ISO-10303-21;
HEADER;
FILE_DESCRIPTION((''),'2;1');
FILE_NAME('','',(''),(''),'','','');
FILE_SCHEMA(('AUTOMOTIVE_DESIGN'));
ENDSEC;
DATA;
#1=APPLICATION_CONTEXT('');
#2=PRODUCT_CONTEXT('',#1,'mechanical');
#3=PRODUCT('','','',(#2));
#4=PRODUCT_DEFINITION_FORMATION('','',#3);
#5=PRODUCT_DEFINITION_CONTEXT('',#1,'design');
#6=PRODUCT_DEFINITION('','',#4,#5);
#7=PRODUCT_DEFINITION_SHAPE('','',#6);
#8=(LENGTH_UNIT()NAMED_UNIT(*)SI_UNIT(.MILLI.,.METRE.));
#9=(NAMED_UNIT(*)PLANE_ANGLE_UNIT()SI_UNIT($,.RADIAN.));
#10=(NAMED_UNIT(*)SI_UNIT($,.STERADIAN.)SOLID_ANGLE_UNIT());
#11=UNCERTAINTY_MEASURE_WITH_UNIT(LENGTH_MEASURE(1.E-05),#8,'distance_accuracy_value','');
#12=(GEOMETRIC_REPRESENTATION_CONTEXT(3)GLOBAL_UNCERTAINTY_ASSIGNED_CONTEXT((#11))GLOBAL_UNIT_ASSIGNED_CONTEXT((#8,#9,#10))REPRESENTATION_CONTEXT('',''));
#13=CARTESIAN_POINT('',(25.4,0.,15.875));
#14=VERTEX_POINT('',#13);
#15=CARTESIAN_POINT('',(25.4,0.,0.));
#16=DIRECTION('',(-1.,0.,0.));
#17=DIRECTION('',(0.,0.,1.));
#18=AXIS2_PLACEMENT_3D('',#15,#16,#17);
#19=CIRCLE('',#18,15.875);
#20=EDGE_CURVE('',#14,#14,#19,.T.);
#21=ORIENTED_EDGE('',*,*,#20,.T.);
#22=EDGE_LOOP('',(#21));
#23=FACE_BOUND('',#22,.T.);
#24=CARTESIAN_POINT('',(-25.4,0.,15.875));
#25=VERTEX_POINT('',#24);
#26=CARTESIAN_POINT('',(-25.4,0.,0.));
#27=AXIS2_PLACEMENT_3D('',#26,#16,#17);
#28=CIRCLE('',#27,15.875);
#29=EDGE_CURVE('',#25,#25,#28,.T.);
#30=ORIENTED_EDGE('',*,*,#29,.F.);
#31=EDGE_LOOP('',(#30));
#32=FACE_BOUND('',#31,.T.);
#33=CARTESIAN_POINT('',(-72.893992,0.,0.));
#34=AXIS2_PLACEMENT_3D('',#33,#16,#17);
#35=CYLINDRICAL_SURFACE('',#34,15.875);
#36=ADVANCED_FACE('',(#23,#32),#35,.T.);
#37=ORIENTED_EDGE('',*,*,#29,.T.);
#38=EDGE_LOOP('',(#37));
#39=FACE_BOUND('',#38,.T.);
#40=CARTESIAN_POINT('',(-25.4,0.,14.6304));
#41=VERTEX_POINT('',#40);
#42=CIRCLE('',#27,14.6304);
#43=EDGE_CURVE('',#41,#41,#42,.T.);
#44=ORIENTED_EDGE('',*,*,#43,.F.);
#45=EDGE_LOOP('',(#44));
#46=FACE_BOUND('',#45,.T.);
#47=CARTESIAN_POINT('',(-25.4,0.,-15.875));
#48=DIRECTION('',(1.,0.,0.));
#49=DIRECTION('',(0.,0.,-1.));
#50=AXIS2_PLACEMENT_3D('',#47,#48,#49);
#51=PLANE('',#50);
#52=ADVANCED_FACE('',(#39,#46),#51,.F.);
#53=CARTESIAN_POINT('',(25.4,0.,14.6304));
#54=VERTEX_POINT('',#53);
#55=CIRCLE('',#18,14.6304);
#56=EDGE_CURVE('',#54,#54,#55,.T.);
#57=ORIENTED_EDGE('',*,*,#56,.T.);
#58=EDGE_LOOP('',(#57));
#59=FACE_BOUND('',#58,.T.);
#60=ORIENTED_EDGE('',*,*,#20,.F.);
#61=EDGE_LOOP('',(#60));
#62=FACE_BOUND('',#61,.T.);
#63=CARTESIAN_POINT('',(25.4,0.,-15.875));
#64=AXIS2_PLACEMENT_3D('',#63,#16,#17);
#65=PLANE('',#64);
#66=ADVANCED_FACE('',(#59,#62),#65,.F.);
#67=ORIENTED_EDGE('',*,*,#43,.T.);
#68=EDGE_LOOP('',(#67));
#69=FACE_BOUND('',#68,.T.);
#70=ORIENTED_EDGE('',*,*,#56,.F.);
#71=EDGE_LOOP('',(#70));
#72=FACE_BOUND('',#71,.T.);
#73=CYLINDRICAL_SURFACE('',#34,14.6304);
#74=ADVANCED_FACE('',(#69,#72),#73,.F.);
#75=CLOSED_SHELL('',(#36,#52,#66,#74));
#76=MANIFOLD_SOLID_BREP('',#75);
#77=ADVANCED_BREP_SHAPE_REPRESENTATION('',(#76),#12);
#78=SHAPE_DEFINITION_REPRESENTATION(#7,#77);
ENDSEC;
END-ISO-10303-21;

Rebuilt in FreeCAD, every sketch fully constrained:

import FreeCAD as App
import Part
import Sketcher
from FreeCAD import Vector
Q = App.Units.Quantity


def add_polygon(sketch, points):
    """Adds a closed chain of lines whose ends are joined by coincident constraints."""
    first, n = sketch.GeometryCount, len(points)
    for a, b in zip(points, points[1:] + points[:1]):
        sketch.addGeometry(Part.LineSegment(App.Vector(*a, 0), App.Vector(*b, 0)), False)
    for i in range(n):
        sketch.addConstraint(Sketcher.Constraint("Coincident", first + i, 2, first + (i + 1) % n, 1))

doc = App.newDocument("Part")
params = doc.addObject("Spreadsheet::Sheet", "Params")
for row, (alias, value) in enumerate([
    ("sketch1_width", "2 in"),
    ("sketch1_height", "0.049 in"),
    ("revolution_angle", "360 deg"),
], start=1):
    params.set(f"A{row}", alias)
    params.set(f"B{row}", "=" + value)
    params.setAlias(f"B{row}", alias)

body = doc.addObject("PartDesign::Body", "Body")

sketch1 = doc.addObject("Sketcher::SketchObject", "Sketch")
body.addObject(sketch1)
sketch1.AttachmentSupport = (doc.XZ_Plane, [""])
sketch1.MapMode = "FlatFace"
add_polygon(sketch1, [(-25.4, -15.9), (-25.4, -14.6), (25.4, -14.6), (25.4, -15.9)])
sketch1.addConstraint([
    Sketcher.Constraint("Vertical", 0),
    Sketcher.Constraint("Horizontal", 1),
    Sketcher.Constraint("Vertical", 2),
    Sketcher.Constraint("Horizontal", 3),
    Sketcher.Constraint("DistanceX", 1, 1, 1, 2, Q("2 in")),
    Sketcher.Constraint("DistanceX", 0, 2, -1, 1, Q("1 in")),
    Sketcher.Constraint("DistanceY", 0, 1, 0, 2, Q("0.049 in")),
    Sketcher.Constraint("DistanceY", 0, 2, -1, 1, Q("0.576 in")),
])
sketch1.setExpression("Constraints[8]", "Params.sketch1_width")
sketch1.setExpression("Constraints[10]", "Params.sketch1_height")
revolution = doc.addObject("PartDesign::Revolution", "Revolution")
body.addObject(revolution)
revolution.Profile = sketch1
revolution.ReferenceAxis = (sketch1, ["H_Axis"])
revolution.setExpression("Angle", "Params.revolution_angle")

doc.recompute()
